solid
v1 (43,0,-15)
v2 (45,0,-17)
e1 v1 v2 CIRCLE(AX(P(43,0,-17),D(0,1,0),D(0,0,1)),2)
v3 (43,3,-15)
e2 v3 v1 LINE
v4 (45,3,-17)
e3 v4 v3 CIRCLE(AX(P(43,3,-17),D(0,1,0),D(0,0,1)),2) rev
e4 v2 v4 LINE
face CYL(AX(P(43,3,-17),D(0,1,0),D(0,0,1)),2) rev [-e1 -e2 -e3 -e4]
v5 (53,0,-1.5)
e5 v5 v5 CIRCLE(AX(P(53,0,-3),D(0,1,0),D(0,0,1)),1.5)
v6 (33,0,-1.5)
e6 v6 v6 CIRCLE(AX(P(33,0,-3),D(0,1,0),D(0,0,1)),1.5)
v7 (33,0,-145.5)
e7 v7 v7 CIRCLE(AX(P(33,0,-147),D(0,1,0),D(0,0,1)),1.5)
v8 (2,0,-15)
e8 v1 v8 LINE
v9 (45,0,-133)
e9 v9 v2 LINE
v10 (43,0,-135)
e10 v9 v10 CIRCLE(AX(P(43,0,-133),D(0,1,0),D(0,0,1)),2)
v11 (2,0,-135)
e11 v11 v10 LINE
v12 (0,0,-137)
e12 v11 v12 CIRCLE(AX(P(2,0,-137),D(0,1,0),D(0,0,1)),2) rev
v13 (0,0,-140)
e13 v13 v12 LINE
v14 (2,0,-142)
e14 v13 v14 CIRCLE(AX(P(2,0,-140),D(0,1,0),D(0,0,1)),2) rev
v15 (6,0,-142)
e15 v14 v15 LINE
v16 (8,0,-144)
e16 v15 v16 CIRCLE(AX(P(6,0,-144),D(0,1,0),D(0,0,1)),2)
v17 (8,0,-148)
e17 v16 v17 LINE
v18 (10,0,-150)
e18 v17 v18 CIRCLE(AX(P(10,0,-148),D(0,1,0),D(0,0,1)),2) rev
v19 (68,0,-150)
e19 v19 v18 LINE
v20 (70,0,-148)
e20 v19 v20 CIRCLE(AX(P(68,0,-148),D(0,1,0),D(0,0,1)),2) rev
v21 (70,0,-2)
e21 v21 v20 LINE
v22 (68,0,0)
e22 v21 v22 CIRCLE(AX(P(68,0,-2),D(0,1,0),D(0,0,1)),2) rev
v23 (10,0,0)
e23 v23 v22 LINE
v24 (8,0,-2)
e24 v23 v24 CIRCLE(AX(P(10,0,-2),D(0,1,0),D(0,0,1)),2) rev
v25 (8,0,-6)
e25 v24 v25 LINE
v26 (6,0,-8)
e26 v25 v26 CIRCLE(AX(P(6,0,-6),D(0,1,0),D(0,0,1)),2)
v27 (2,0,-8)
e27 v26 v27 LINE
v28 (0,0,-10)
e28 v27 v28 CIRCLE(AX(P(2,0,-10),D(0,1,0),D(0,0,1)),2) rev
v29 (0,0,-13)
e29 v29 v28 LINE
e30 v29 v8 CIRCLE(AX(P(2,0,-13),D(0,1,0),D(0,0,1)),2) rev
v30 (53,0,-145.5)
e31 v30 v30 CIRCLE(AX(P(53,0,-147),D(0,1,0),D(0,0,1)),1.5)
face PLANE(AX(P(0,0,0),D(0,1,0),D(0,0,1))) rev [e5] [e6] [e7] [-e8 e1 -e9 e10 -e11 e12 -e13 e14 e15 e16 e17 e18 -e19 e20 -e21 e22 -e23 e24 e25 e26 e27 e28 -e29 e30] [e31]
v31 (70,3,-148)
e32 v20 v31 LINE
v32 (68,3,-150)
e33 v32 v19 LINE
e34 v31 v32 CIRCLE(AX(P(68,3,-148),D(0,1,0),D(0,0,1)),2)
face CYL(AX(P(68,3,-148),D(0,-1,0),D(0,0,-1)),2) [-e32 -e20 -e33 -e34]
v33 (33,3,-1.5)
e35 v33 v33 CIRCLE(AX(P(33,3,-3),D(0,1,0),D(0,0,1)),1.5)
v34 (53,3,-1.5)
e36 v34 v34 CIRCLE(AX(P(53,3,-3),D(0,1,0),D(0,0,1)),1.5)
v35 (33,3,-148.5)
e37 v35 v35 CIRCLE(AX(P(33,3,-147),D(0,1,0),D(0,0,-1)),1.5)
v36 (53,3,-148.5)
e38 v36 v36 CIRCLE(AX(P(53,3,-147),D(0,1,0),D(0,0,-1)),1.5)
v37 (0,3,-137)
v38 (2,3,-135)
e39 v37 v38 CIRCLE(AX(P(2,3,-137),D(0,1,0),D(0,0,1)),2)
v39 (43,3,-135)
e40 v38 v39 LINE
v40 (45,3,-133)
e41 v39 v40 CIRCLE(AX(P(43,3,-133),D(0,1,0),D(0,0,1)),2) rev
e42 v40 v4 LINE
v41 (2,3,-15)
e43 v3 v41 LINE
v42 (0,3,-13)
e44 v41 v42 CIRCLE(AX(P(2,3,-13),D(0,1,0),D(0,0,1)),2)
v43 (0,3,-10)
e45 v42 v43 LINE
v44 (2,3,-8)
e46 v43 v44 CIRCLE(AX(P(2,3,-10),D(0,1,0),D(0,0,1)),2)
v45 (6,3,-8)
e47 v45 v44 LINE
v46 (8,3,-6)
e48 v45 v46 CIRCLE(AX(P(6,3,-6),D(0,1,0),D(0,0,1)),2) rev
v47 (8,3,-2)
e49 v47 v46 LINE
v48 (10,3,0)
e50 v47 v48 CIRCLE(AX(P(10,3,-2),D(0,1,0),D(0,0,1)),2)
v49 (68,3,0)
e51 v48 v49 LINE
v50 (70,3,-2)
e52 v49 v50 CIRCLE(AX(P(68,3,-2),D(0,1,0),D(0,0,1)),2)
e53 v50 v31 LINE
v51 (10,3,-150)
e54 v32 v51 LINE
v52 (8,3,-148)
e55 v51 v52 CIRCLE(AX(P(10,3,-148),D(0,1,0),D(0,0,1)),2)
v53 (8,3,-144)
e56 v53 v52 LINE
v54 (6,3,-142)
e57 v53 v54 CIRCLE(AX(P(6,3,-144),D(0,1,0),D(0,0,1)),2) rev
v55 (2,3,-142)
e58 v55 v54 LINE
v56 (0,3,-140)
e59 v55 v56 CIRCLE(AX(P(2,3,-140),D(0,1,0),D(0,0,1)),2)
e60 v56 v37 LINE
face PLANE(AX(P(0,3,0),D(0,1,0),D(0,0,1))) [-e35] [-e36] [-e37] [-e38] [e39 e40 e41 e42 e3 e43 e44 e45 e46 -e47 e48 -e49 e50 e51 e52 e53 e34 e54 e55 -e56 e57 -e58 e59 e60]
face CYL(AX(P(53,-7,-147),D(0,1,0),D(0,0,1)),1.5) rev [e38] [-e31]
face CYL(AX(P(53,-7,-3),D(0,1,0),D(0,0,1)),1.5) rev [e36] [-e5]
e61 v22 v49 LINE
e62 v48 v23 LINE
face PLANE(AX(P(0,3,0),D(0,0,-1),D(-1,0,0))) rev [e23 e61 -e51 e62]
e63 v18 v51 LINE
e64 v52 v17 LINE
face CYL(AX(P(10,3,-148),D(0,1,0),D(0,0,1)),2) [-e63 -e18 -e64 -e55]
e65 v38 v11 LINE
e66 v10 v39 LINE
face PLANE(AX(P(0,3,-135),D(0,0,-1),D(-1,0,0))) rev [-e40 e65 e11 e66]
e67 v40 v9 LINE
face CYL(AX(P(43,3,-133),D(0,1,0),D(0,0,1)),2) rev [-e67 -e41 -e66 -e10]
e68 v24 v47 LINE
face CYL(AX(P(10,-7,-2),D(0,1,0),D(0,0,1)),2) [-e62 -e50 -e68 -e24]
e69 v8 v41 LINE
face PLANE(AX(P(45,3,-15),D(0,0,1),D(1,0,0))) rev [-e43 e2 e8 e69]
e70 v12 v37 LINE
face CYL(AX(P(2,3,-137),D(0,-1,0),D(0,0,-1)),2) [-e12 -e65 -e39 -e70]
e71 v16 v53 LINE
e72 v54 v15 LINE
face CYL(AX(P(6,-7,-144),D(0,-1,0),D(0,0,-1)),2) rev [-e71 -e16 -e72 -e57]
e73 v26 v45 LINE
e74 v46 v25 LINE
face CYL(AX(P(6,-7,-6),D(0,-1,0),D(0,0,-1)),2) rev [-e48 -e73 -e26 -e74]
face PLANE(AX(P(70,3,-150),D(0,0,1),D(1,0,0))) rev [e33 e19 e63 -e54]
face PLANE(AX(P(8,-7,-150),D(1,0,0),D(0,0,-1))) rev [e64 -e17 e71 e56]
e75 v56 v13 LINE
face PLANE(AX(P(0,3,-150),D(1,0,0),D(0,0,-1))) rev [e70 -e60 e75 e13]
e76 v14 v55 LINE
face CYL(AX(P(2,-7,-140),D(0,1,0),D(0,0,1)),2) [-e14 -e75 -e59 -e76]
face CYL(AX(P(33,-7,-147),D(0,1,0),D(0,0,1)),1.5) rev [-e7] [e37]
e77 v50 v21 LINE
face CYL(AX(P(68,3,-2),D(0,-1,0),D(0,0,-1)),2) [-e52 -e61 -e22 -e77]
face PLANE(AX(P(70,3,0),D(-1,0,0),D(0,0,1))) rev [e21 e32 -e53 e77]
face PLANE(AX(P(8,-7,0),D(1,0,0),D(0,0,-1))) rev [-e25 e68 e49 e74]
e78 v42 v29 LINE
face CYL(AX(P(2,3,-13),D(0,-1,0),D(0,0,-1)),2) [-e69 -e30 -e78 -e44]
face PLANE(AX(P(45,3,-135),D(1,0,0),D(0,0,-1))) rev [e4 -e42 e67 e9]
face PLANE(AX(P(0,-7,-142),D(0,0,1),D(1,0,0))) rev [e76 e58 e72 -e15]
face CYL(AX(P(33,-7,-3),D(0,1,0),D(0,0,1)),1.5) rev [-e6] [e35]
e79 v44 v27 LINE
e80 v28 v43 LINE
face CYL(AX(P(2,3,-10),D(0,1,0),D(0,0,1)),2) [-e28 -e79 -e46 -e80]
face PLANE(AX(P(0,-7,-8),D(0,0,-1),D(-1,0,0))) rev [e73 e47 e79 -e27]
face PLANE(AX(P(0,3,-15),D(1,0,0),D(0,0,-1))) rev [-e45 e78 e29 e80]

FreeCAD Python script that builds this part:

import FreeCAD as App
import Part
import Sketcher
Q = App.Units.Quantity


def edges_at(feature, points):
    """Names of the edges that pass closest to the given points."""
    edges = feature.Shape.Edges
    near = lambda p: min(range(len(edges)), key=lambda i: edges[i].distToShape(Part.Vertex(*p))[0])
    return sorted({f"Edge{near(p) + 1}" for p in points})

doc = App.newDocument("Part")
params = doc.addObject("Spreadsheet::Sheet", "Params")
for row, (alias, value) in enumerate([
    ("sketch1_width", "70 mm"),
    ("sketch1_width2", "45 mm"),
    ("sketch1_height", "150 mm"),
    ("sketch1_height2", "15 mm"),
    ("pad1_length", "3 mm"),
    ("sketch2_width", "8 mm"),
    ("pocket1_length", "10 mm"),
    ("sketch3_diameter", "3 mm"),
    ("pocket2_length", "10 mm"),
    ("fillet_radius", "2 mm"),
], start=1):
    params.set(f"A{row}", alias)
    params.set(f"B{row}", "=" + value)
    params.setAlias(f"B{row}", alias)

body = doc.addObject("PartDesign::Body", "Body")

# Sketch on XZ plane
sketch1 = body.newObject("Sketcher::SketchObject", "Sketch")
sketch1.AttachmentSupport = (doc.getObject("XZ_Plane"), [""])
sketch1.MapMode = "FlatFace"
sketch1.addGeometry([
    Part.LineSegment(App.Vector(0, 0, 0), App.Vector(70, 0, 0)),  # 0
    Part.LineSegment(App.Vector(70, 0, 0), App.Vector(70, -150, 0)),  # 1
    Part.LineSegment(App.Vector(70, -150, 0), App.Vector(0, -150, 0)),  # 2
    Part.LineSegment(App.Vector(0, -150, 0), App.Vector(0, -135, 0)),  # 3
    Part.LineSegment(App.Vector(0, -135, 0), App.Vector(45, -135, 0)),  # 4
    Part.LineSegment(App.Vector(45, -135, 0), App.Vector(45, -15, 0)),  # 5
    Part.LineSegment(App.Vector(45, -15, 0), App.Vector(0, -15, 0)),  # 6
    Part.LineSegment(App.Vector(0, -15, 0), App.Vector(0, 0, 0)),  # 7
], False)
sketch1.addConstraint([
    Sketcher.Constraint("Coincident", 0, 2, 1, 1),
    Sketcher.Constraint("Coincident", 1, 2, 2, 1),
    Sketcher.Constraint("Coincident", 2, 2, 3, 1),
    Sketcher.Constraint("Coincident", 3, 2, 4, 1),
    Sketcher.Constraint("Coincident", 4, 2, 5, 1),
    Sketcher.Constraint("Coincident", 5, 2, 6, 1),
    Sketcher.Constraint("Coincident", 6, 2, 7, 1),
    Sketcher.Constraint("Coincident", 7, 2, 0, 1),
    Sketcher.Constraint("Horizontal", 0),
    Sketcher.Constraint("Vertical", 1),
    Sketcher.Constraint("Horizontal", 2),
    Sketcher.Constraint("Vertical", 3),
    Sketcher.Constraint("Horizontal", 4),
    Sketcher.Constraint("Vertical", 5),
    Sketcher.Constraint("Horizontal", 6),
    Sketcher.Constraint("Vertical", 7),
    Sketcher.Constraint("Coincident", 7, 2, -1, 1),
    Sketcher.Constraint("PointOnObject", 2, 2, -2),
    Sketcher.Constraint("Equal", 3, 7),
    Sketcher.Constraint("DistanceX", 0, 1, 0, 2, Q("70 mm")),
    Sketcher.Constraint("DistanceX", 4, 1, 4, 2, Q("45 mm")),
    Sketcher.Constraint("DistanceY", 1, 2, 1, 1, Q("150 mm")),
    Sketcher.Constraint("DistanceY", 3, 1, 3, 2, Q("15 mm")),
])
sketch1.setExpression("Constraints[19]", "Params.sketch1_width")
sketch1.setExpression("Constraints[20]", "Params.sketch1_width2")
sketch1.setExpression("Constraints[21]", "Params.sketch1_height")
sketch1.setExpression("Constraints[22]", "Params.sketch1_height2")
pad1 = body.newObject("PartDesign::Pad", "Pad")
pad1.Profile = sketch1
pad1.setExpression("Length", "Params.pad1_length")
pad1.Reversed = True

# Sketch on XZ plane
sketch2 = body.newObject("Sketcher::SketchObject", "Sketch001")
sketch2.AttachmentSupport = (doc.getObject("XZ_Plane"), [""])
sketch2.MapMode = "FlatFace"
sketch2.AttachmentOffset = App.Placement(App.Vector(0, 0, -3), App.Rotation())
sketch2.addGeometry([
    Part.LineSegment(App.Vector(0, -8, 0), App.Vector(0, 0, 0)),  # 0
    Part.LineSegment(App.Vector(0, 0, 0), App.Vector(8, 0, 0)),  # 1
    Part.LineSegment(App.Vector(8, 0, 0), App.Vector(8, -8, 0)),  # 2
    Part.LineSegment(App.Vector(8, -8, 0), App.Vector(0, -8, 0)),  # 3
    Part.LineSegment(App.Vector(0, -150, 0), App.Vector(0, -142, 0)),  # 4
    Part.LineSegment(App.Vector(0, -142, 0), App.Vector(8, -142, 0)),  # 5
    Part.LineSegment(App.Vector(8, -142, 0), App.Vector(8, -150, 0)),  # 6
    Part.LineSegment(App.Vector(8, -150, 0), App.Vector(0, -150, 0)),  # 7
], False)
sketch2.addConstraint([
    Sketcher.Constraint("Coincident", 0, 2, 1, 1),
    Sketcher.Constraint("Coincident", 1, 2, 2, 1),
    Sketcher.Constraint("Coincident", 2, 2, 3, 1),
    Sketcher.Constraint("Coincident", 3, 2, 0, 1),
    Sketcher.Constraint("Coincident", 4, 2, 5, 1),
    Sketcher.Constraint("Coincident", 5, 2, 6, 1),
    Sketcher.Constraint("Coincident", 6, 2, 7, 1),
    Sketcher.Constraint("Coincident", 7, 2, 4, 1),
    Sketcher.Constraint("Vertical", 0),
    Sketcher.Constraint("Horizontal", 1),
    Sketcher.Constraint("Vertical", 2),
    Sketcher.Constraint("Horizontal", 3),
    Sketcher.Constraint("Vertical", 4),
    Sketcher.Constraint("Horizontal", 5),
    Sketcher.Constraint("Vertical", 6),
    Sketcher.Constraint("Horizontal", 7),
    Sketcher.Constraint("Coincident", 0, 2, -1, 1),
    Sketcher.Constraint("PointOnObject", 4, 2, -2),
    Sketcher.Constraint("Vertical", 2, 2, 5, 2),
    Sketcher.Constraint("Equal", 7, 0),
    Sketcher.Constraint("Equal", 2, 4),
    Sketcher.Constraint("DistanceX", 1, 1, 1, 2, Q("8 mm")),
    Sketcher.Constraint("DistanceY", 4, 2, -1, 1, Q("142 mm")),
])
sketch2.setExpression("Constraints[21]", "Params.sketch2_width")
pocket1 = body.newObject("PartDesign::Pocket", "Pocket")
pocket1.Profile = sketch2
pocket1.setExpression("Length", "Params.pocket1_length")
pocket1.Reversed = True

# Sketch on XZ plane
sketch3 = body.newObject("Sketcher::SketchObject", "Sketch002")
sketch3.AttachmentSupport = (doc.getObject("XZ_Plane"), [""])
sketch3.MapMode = "FlatFace"
sketch3.AttachmentOffset = App.Placement(App.Vector(0, 0, -3), App.Rotation())
sketch3.addGeometry([
    Part.Circle(App.Vector(33, -3, 0), App.Vector(0, 0, 1), 1.5),
    Part.Circle(App.Vector(53, -3, 0), App.Vector(0, 0, 1), 1.5),
    Part.Circle(App.Vector(53, -147, 0), App.Vector(0, 0, 1), 1.5),
    Part.Circle(App.Vector(33, -147, 0), App.Vector(0, 0, 1), 1.5),
], False)
sketch3.addConstraint([
    Sketcher.Constraint("Equal", 0, 1),
    Sketcher.Constraint("Equal", 1, 2),
    Sketcher.Constraint("Equal", 2, 3),
    Sketcher.Constraint("Horizontal", 0, 3, 1, 3),
    Sketcher.Constraint("Horizontal", 2, 3, 3, 3),
    Sketcher.Constraint("Vertical", 1, 3, 2, 3),
    Sketcher.Constraint("Vertical", 0, 3, 3, 3),
    Sketcher.Constraint("Diameter", 0, Q("3 mm")),
    Sketcher.Constraint("DistanceX", -1, 1, 0, 3, Q("33 mm")),
    Sketcher.Constraint("DistanceY", 0, 3, -1, 1, Q("3 mm")),
    Sketcher.Constraint("DistanceX", -1, 1, 1, 3, Q("53 mm")),
    Sketcher.Constraint("DistanceY", 2, 3, -1, 1, Q("147 mm")),
])
sketch3.setExpression("Constraints[7]", "Params.sketch3_diameter")
pocket2 = body.newObject("PartDesign::Pocket", "Pocket001")
pocket2.Profile = sketch3
pocket2.setExpression("Length", "Params.pocket2_length")
pocket2.Reversed = True
doc.recompute()

fillet = body.newObject("PartDesign::Fillet", "Fillet")
fillet.Base = (pocket2, edges_at(pocket2, [
    (0, 1.5, -15),
    (45, 1.5, -15),
    (45, 1.5, -135),
    (0, 1.5, -135),
    (70, 1.5, -150),
    (70, 1.5, 0),
    (8, 1.5, 0),
    (0, 1.5, -8),
    (8, 1.5, -8),
    (0, 1.5, -142),
    (8, 1.5, -150),
    (8, 1.5, -142),
]))
fillet.setExpression("Radius", "Params.fillet_radius")

doc.recompute()
